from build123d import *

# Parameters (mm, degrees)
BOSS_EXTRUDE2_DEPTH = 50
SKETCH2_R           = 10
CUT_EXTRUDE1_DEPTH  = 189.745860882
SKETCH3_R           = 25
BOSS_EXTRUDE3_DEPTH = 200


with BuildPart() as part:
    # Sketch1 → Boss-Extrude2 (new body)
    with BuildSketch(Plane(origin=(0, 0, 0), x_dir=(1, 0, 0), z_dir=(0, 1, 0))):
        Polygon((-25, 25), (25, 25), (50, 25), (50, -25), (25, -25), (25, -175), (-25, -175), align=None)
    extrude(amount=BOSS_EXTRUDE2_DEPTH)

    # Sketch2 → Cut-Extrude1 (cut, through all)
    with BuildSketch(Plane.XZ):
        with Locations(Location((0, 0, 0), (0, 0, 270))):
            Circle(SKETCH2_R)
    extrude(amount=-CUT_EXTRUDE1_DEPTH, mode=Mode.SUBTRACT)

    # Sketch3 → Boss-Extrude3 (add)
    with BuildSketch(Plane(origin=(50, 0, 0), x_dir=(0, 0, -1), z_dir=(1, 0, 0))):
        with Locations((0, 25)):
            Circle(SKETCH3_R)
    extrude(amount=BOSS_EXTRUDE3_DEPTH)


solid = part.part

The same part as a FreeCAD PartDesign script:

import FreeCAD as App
import Part
import Sketcher

V = App.Vector

doc = App.newDocument("Part")
params = doc.addObject("Spreadsheet::Sheet", "Params")
for row, (alias, value) in enumerate([
    ("sketch1_width", "75 mm"),
    ("sketch1_width2", "50 mm"),
    ("sketch1_height", "200 mm"),
    ("pad1_length", "50 mm"),
    ("sketch2_diameter", "20 mm"),
    ("sketch3_diameter", "50 mm"),
    ("pad2_length", "200 mm"),
], start=1):
    params.set(f"A{row}", alias)
    params.set(f"B{row}", "=" + value)
    params.setAlias(f"B{row}", alias)

body = doc.addObject("PartDesign::Body", "Body")

sketch1 = doc.addObject("Sketcher::SketchObject", "Sketch")
body.addObject(sketch1)
sketch1.AttachmentSupport = (doc.XZ_Plane, [""])
sketch1.MapMode = "FlatFace"
sketch1.addGeometry(Part.LineSegment(V(50, -25, 0), V(-25, -25, 0)), False)
sketch1.addGeometry(Part.LineSegment(V(-25, -25, 0), V(-25, 175, 0)), False)
sketch1.addGeometry(Part.LineSegment(V(-25, 175, 0), V(25, 175, 0)), False)
sketch1.addGeometry(Part.LineSegment(V(25, 175, 0), V(25, 25, 0)), False)
sketch1.addGeometry(Part.LineSegment(V(25, 25, 0), V(50, 25, 0)), False)
sketch1.addGeometry(Part.LineSegment(V(50, 25, 0), V(50, -25, 0)), False)
sketch1.addConstraint(Sketcher.Constraint("Coincident", 0, 2, 1, 1))
sketch1.addConstraint(Sketcher.Constraint("Coincident", 1, 2, 2, 1))
sketch1.addConstraint(Sketcher.Constraint("Coincident", 2, 2, 3, 1))
sketch1.addConstraint(Sketcher.Constraint("Coincident", 3, 2, 4, 1))
sketch1.addConstraint(Sketcher.Constraint("Coincident", 4, 2, 5, 1))
sketch1.addConstraint(Sketcher.Constraint("Coincident", 5, 2, 0, 1))
sketch1.addConstraint(Sketcher.Constraint("Horizontal", 0))
sketch1.addConstraint(Sketcher.Constraint("Vertical", 1))
sketch1.addConstraint(Sketcher.Constraint("Horizontal", 2))
sketch1.addConstraint(Sketcher.Constraint("Vertical", 3))
sketch1.addConstraint(Sketcher.Constraint("Horizontal", 4))
sketch1.addConstraint(Sketcher.Constraint("Vertical", 5))
sketch1.addConstraint(Sketcher.Constraint("Symmetric", 0, 2, 3, 2, -1, 1))
sketch1.addConstraint(Sketcher.Constraint("Equal", 2, 5))
sketch1.addConstraint(Sketcher.Constraint("DistanceX", 0, 2, 0, 1, 75.0))
sketch1.addConstraint(Sketcher.Constraint("DistanceX", 2, 1, 2, 2, 50.0))
sketch1.addConstraint(Sketcher.Constraint("DistanceY", 1, 1, 1, 2, 200.0))
sketch1.setExpression("Constraints[14]", "Params.sketch1_width")
sketch1.setExpression("Constraints[15]", "Params.sketch1_width2")
sketch1.setExpression("Constraints[16]", "Params.sketch1_height")
pad1 = doc.addObject("PartDesign::Pad", "Pad")
body.addObject(pad1)
pad1.Profile = sketch1
pad1.setExpression("Length", "Params.pad1_length")
pad1.Reversed = True

sketch2 = doc.addObject("Sketcher::SketchObject", "Sketch001")
body.addObject(sketch2)
sketch2.AttachmentSupport = (doc.XZ_Plane, [""])
sketch2.MapMode = "FlatFace"
sketch2.addGeometry(Part.Circle(V(0, 0, 0), V(0, 0, 1), 10), False)
sketch2.addConstraint(Sketcher.Constraint("Coincident", 0, 3, -1, 1))
sketch2.addConstraint(Sketcher.Constraint("Diameter", 0, 20.0))
sketch2.setExpression("Constraints[1]", "Params.sketch2_diameter")
pocket1 = doc.addObject("PartDesign::Pocket", "Pocket")
body.addObject(pocket1)
pocket1.Profile = sketch2
pocket1.Type = "ThroughAll"

sketch3 = doc.addObject("Sketcher::SketchObject", "Sketch002")
body.addObject(sketch3)
sketch3.AttachmentSupport = (doc.YZ_Plane, [""])
sketch3.MapMode = "FlatFace"
sketch3.AttachmentOffset = App.Placement(V(0, 0, 50), App.Rotation())
sketch3.addGeometry(Part.Circle(V(25, 0, 0), V(0, 0, 1), 25), False)
sketch3.addConstraint(Sketcher.Constraint("PointOnObject", 0, 3, -1))
sketch3.addConstraint(Sketcher.Constraint("Diameter", 0, 50.0))
sketch3.addConstraint(Sketcher.Constraint("DistanceX", -1, 1, 0, 3, 25.0))
sketch3.setExpression("Constraints[1]", "Params.sketch3_diameter")
pad2 = doc.addObject("PartDesign::Pad", "Pad001")
body.addObject(pad2)
pad2.Profile = sketch3
pad2.setExpression("Length", "Params.pad2_length")

doc.recompute()
